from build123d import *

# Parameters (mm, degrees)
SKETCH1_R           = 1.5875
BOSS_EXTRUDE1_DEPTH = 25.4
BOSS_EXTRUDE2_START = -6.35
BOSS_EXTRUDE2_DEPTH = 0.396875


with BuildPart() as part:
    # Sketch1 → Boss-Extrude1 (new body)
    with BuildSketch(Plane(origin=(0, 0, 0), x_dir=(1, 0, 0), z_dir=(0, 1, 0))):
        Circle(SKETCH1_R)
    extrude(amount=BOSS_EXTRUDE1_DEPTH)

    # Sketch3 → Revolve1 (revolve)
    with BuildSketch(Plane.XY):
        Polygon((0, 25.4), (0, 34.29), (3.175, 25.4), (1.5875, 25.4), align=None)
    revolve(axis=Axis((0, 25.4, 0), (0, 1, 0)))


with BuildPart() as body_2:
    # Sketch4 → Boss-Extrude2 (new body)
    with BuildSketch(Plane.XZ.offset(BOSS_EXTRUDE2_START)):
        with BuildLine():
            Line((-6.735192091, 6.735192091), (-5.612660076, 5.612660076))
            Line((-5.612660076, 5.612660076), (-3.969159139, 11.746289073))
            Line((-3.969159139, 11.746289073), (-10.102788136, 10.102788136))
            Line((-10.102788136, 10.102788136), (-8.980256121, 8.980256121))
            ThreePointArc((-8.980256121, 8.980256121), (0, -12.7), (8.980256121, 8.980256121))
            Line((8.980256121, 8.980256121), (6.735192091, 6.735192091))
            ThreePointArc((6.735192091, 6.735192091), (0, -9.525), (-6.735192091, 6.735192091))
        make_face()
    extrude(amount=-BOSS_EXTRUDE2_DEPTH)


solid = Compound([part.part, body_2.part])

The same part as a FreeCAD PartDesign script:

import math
import FreeCAD as App
import Part
import Sketcher
from FreeCAD import Vector
Q = App.Units.Quantity

doc = App.newDocument("Part")
params = doc.addObject("Spreadsheet::Sheet", "Params")
for row, (alias, value) in enumerate([
    ("sketch1_diameter", "0.125 in"),
    ("pad1_length", "1 in"),
    ("sketch2_height", "0.35 in"),
    ("sketch2_width", "0.125 in"),
    ("revolution_angle", "360 deg"),
    ("sketch3_radius", "0.5 in"),
    ("sketch3_radius2", "0.375 in"),
    ("sketch3_length", "0.25 in"),
    ("pad2_length", "0.015625 in"),
], start=1):
    params.set(f"A{row}", alias)
    params.set(f"B{row}", "=" + value)
    params.setAlias(f"B{row}", alias)

body = doc.addObject("PartDesign::Body", "Body")

sketch1 = body.newObject("Sketcher::SketchObject", "Sketch")
sketch1.AttachmentSupport = (doc.getObject("XZ_Plane"), [""])
sketch1.MapMode = "FlatFace"
sketch1.addGeometry(Part.Circle(Vector(0, 0, 0), Vector(0, 0, 1), 1.6), False)
sketch1.addConstraint(Sketcher.Constraint("Coincident", 0, 3, -1, 1))
sketch1.addConstraint(Sketcher.Constraint("Diameter", 0, Q("0.125 in")))
sketch1.setExpression("Constraints[1]", "Params.sketch1_diameter")
pad1 = body.newObject("PartDesign::Pad", "Pad")
pad1.Profile = sketch1
pad1.setExpression("Length", "Params.pad1_length")
pad1.Reversed = True

sketch2 = body.newObject("Sketcher::SketchObject", "Sketch001")
sketch2.AttachmentSupport = (doc.getObject("XY_Plane"), [""])
sketch2.MapMode = "FlatFace"
sketch2.addGeometry(Part.LineSegment(Vector(0, 34.3, 0), Vector(0, 25.4, 0)), False)
sketch2.addGeometry(Part.LineSegment(Vector(0, 25.4, 0), Vector(3.2, 25.4, 0)), False)
sketch2.addGeometry(Part.LineSegment(Vector(3.2, 25.4, 0), Vector(0, 34.3, 0)), False)
sketch2.addConstraint(Sketcher.Constraint("Coincident", 0, 2, 1, 1))
sketch2.addConstraint(Sketcher.Constraint("Coincident", 1, 2, 2, 1))
sketch2.addConstraint(Sketcher.Constraint("Coincident", 2, 2, 0, 1))
sketch2.addConstraint(Sketcher.Constraint("Vertical", 0))
sketch2.addConstraint(Sketcher.Constraint("Horizontal", 1))
sketch2.addConstraint(Sketcher.Constraint("PointOnObject", 0, 2, -2))
sketch2.addConstraint(Sketcher.Constraint("DistanceY", -1, 1, 0, 2, Q("1 in")))
sketch2.addConstraint(Sketcher.Constraint("DistanceY", 0, 2, 0, 1, Q("0.35 in")))
sketch2.addConstraint(Sketcher.Constraint("DistanceX", 1, 1, 1, 2, Q("0.125 in")))
sketch2.setExpression("Constraints[7]", "Params.sketch2_height")
sketch2.setExpression("Constraints[8]", "Params.sketch2_width")
revolution = body.newObject("PartDesign::Revolution", "Revolution")
revolution.Profile = sketch2
revolution.ReferenceAxis = (sketch2, ["V_Axis"])
revolution.setExpression("Angle", "Params.revolution_angle")
body2 = doc.addObject("PartDesign::Body", "Body001")

sketch3 = body2.newObject("Sketcher::SketchObject", "Sketch002")
sketch3.AttachmentSupport = (doc.getObject("XZ_Plane001"), [""])
sketch3.MapMode = "FlatFace"
sketch3.AttachmentOffset = App.Placement(Vector(0, 0, -0.25 * 25.4), App.Rotation())
sketch3.addGeometry(Part.LineSegment(Vector(-6.7, 6.7, 0), Vector(-5.6, 5.6, 0)), False)
sketch3.addGeometry(Part.LineSegment(Vector(-5.6, 5.6, 0), Vector(-4, 11.7, 0)), False)
sketch3.addGeometry(Part.LineSegment(Vector(-4, 11.7, 0), Vector(-10.1, 10.1, 0)), False)
sketch3.addGeometry(Part.LineSegment(Vector(-10.1, 10.1, 0), Vector(-9, 9, 0)), False)
sketch3.addGeometry(Part.ArcOfCircle(Part.Circle(Vector(0, 0, 0), Vector(0, 0, 1), 12.7), math.radians(135), math.radians(405)), False)
sketch3.addGeometry(Part.LineSegment(Vector(9, 9, 0), Vector(6.7, 6.7, 0)), False)
sketch3.addGeometry(Part.ArcOfCircle(Part.Circle(Vector(0, 0, 0), Vector(0, 0, 1), 9.5), math.radians(135), math.radians(405)), False)
sketch3.addConstraint(Sketcher.Constraint("Coincident", 0, 2, 1, 1))
sketch3.addConstraint(Sketcher.Constraint("Coincident", 1, 2, 2, 1))
sketch3.addConstraint(Sketcher.Constraint("Coincident", 2, 2, 3, 1))
sketch3.addConstraint(Sketcher.Constraint("Coincident", 3, 2, 4, 1))
sketch3.addConstraint(Sketcher.Constraint("Coincident", 4, 2, 5, 1))
sketch3.addConstraint(Sketcher.Constraint("Coincident", 5, 2, 6, 2))
sketch3.addConstraint(Sketcher.Constraint("Coincident", 6, 1, 0, 1))
sketch3.addConstraint(Sketcher.Constraint("Coincident", 4, 3, -1, 1))
sketch3.addConstraint(Sketcher.Constraint("Coincident", 6, 3, -1, 1))
sketch3.addConstraint(Sketcher.Constraint("Parallel", 0, 3))
sketch3.addConstraint(Sketcher.Constraint("Perpendicular", 3, 5))
sketch3.addConstraint(Sketcher.Constraint("Horizontal", 3, 2, 4, 2))
sketch3.addConstraint(Sketcher.Constraint("Horizontal", 5, 2, 6, 1))
sketch3.addConstraint(Sketcher.Constraint("Equal", 1, 2))
sketch3.addConstraint(Sketcher.Constraint("Equal", 0, 3))
sketch3.addConstraint(Sketcher.Constraint("Radius", 4, Q("0.5 in")))
sketch3.addConstraint(Sketcher.Constraint("Angle", 0, Q("-45 deg")))
sketch3.addConstraint(Sketcher.Constraint("Angle", 1, Q("75 deg")))
sketch3.addConstraint(Sketcher.Constraint("Radius", 6, Q("0.375 in")))
sketch3.addConstraint(Sketcher.Constraint("Distance", 1, Q("0.25 in")))
sketch3.addConstraint(Sketcher.Constraint("DistanceX", 0, 2, -1, 1, Q("5.61266 mm")))
sketch3.setExpression("Constraints[15]", "Params.sketch3_radius")
sketch3.setExpression("Constraints[18]", "Params.sketch3_radius2")
sketch3.setExpression("Constraints[19]", "Params.sketch3_length")
pad2 = body2.newObject("PartDesign::Pad", "Pad001")
pad2.Profile = sketch3
pad2.setExpression("Length", "Params.pad2_length")
pad2.Reversed = True

doc.recompute()
